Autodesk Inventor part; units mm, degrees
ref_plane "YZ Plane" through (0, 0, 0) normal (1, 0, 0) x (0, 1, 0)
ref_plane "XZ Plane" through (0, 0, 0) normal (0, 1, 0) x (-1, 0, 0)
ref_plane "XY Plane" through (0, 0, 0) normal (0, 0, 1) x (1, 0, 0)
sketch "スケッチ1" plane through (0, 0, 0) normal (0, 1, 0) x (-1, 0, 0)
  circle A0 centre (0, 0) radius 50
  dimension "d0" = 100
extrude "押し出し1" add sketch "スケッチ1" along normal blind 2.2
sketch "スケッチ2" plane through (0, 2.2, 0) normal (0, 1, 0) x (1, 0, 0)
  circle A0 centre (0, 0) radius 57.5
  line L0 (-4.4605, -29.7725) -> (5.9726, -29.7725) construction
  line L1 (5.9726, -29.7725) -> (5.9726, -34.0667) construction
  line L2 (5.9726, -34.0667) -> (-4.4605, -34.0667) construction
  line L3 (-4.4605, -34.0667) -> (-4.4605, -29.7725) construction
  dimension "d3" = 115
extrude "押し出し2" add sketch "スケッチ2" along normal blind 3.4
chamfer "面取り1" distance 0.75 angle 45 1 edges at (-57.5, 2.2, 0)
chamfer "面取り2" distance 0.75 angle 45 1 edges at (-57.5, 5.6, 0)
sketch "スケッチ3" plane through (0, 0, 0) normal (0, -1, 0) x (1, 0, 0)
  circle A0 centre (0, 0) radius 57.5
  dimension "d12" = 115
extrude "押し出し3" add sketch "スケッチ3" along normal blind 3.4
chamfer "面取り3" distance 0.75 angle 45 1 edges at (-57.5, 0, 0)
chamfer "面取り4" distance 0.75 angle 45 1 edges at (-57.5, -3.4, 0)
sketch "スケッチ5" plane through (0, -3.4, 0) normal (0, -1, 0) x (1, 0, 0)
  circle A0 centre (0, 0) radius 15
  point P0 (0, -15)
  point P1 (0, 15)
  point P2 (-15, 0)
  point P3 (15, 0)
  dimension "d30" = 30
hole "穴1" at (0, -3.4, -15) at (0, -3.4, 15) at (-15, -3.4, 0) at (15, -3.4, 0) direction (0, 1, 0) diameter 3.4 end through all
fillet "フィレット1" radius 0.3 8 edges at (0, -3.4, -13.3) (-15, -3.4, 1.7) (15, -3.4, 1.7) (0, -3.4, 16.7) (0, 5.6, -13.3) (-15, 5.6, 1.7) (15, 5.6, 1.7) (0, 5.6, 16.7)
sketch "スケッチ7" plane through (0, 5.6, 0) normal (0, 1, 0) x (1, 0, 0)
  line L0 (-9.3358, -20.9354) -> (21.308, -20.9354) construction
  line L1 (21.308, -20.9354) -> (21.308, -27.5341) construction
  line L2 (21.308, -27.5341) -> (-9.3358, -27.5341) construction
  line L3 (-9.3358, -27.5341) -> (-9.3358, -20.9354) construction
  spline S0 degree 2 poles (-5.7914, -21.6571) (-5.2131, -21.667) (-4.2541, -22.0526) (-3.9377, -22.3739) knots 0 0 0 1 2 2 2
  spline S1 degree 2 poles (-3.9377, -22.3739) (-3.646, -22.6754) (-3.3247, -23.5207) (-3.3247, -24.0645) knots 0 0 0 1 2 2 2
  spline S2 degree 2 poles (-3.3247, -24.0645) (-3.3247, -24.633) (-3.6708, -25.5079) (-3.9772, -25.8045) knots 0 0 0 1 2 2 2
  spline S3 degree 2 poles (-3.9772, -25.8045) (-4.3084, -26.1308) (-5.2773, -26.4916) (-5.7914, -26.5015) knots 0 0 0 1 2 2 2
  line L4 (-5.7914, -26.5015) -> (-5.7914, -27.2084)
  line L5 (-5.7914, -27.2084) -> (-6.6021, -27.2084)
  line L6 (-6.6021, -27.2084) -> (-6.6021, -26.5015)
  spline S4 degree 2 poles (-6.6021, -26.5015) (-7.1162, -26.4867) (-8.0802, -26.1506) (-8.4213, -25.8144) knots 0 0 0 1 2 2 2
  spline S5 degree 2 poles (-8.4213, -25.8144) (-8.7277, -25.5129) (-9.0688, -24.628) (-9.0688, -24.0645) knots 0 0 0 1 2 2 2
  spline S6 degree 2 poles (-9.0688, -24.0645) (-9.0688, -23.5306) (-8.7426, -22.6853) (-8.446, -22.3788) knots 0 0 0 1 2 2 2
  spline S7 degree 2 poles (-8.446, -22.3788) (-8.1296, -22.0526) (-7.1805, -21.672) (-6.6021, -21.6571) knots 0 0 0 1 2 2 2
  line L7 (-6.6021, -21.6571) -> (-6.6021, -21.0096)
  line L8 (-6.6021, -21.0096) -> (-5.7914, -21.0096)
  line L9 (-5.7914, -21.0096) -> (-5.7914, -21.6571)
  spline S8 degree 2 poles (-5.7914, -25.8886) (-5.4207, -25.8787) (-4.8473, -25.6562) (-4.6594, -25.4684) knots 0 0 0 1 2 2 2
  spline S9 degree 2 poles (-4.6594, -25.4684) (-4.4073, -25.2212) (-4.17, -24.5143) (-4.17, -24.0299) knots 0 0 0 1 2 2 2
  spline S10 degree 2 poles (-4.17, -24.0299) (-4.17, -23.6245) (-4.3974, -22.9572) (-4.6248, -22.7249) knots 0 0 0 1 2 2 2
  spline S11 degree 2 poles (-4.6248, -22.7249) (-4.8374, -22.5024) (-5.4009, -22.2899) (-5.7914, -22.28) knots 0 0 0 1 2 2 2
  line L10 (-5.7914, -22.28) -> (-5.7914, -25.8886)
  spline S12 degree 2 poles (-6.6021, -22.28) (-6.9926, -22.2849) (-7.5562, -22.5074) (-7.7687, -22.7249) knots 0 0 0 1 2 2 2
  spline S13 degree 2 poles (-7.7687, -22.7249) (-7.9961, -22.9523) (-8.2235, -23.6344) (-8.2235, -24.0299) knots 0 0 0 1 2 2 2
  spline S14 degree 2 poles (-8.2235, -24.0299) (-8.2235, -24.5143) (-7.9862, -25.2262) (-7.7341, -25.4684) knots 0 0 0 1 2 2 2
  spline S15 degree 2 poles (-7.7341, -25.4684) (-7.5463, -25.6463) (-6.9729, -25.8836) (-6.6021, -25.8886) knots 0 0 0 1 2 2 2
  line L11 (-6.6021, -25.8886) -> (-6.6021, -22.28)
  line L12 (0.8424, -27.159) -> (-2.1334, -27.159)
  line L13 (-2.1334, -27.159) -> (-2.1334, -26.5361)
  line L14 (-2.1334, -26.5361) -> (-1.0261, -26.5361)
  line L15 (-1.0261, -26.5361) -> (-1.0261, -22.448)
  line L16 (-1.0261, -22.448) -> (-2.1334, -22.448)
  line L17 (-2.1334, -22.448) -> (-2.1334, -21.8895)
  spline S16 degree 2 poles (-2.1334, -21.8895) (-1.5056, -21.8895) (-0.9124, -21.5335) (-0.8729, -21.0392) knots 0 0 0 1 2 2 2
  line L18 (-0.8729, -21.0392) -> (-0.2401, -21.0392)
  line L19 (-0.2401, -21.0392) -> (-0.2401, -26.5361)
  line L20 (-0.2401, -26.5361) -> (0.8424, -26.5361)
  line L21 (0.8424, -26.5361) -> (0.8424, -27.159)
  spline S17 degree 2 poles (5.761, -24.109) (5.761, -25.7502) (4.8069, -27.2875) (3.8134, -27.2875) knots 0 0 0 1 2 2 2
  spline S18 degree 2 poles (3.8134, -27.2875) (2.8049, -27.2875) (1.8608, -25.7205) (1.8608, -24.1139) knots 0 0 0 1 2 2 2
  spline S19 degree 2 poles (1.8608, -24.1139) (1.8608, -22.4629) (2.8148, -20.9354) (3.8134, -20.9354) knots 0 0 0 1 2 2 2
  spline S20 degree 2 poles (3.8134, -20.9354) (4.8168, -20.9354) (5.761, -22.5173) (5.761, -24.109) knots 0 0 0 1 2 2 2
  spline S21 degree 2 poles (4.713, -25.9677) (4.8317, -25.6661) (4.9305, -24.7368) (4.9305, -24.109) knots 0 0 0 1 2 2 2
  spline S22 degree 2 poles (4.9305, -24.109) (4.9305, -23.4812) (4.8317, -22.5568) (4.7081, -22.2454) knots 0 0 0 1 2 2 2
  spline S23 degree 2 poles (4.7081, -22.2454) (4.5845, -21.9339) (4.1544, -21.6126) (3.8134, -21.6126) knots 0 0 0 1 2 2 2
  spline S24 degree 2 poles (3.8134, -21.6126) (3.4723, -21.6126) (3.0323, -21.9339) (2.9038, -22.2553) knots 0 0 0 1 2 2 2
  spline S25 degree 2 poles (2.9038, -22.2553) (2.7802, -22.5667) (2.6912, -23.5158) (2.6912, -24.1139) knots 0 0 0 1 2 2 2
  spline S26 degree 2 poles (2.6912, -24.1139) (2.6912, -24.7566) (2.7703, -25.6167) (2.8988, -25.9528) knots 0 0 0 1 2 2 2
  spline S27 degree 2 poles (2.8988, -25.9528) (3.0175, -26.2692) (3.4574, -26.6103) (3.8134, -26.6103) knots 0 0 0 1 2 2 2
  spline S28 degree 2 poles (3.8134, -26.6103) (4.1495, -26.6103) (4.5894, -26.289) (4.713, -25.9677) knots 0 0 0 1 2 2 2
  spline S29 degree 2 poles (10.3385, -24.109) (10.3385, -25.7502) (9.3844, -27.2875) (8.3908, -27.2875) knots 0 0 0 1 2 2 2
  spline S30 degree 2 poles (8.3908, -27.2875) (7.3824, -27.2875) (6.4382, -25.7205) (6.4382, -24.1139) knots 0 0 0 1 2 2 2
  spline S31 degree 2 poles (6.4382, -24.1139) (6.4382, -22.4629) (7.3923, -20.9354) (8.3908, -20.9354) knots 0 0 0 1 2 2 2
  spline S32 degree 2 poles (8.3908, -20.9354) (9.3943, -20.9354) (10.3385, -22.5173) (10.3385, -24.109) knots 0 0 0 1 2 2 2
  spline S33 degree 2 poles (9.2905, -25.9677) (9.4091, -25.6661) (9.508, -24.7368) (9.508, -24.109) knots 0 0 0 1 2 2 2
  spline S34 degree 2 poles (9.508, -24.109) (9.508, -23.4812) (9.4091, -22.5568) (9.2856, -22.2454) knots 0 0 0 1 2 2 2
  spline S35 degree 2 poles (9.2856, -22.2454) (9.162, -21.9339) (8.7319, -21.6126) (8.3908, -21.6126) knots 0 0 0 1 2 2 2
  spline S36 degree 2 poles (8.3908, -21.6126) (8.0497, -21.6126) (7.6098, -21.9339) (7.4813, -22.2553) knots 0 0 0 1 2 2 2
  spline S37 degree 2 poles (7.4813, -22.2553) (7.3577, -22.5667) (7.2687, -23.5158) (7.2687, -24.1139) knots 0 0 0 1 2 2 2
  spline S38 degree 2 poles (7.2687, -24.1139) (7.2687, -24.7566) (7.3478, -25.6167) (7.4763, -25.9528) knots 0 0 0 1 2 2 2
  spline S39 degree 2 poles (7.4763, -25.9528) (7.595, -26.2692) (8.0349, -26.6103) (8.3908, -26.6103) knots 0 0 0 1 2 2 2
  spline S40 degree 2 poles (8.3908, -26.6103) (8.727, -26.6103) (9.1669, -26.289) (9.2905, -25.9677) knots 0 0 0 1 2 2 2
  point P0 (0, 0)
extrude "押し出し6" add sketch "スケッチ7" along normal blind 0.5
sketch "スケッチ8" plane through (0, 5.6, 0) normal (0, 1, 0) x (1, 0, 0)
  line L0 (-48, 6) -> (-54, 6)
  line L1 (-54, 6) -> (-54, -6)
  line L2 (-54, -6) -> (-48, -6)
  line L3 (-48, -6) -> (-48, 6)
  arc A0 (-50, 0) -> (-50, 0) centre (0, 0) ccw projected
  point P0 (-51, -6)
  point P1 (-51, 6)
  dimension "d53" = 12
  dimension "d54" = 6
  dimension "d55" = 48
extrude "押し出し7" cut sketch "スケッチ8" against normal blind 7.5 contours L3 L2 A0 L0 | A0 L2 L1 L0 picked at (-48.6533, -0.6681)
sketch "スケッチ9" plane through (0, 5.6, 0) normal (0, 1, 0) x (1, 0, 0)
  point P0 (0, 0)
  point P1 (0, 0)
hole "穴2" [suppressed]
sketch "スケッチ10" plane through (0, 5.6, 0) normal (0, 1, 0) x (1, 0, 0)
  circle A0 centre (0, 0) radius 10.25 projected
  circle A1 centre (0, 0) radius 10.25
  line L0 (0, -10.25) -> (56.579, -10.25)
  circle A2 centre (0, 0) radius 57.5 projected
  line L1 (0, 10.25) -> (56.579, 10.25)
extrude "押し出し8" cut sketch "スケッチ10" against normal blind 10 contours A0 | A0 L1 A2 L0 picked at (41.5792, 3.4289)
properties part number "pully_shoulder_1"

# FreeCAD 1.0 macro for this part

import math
import FreeCAD as App
import Part
import Sketcher


def edges_at(feature, points):
    """Names of the edges that pass closest to the given points."""
    edges = feature.Shape.Edges
    near = lambda p: min(range(len(edges)), key=lambda i: edges[i].distToShape(Part.Vertex(*p))[0])
    return sorted({f"Edge{near(p) + 1}" for p in points})


def add_polygon(sketch, points):
    """Adds a closed chain of lines whose ends are joined by coincident constraints."""
    first, n = sketch.GeometryCount, len(points)
    for a, b in zip(points, points[1:] + points[:1]):
        sketch.addGeometry(Part.LineSegment(App.Vector(*a, 0), App.Vector(*b, 0)), False)
    for i in range(n):
        sketch.addConstraint(Sketcher.Constraint("Coincident", first + i, 2, first + (i + 1) % n, 1))

doc = App.newDocument("Part")
body = doc.addObject("PartDesign::Body", "Body")

# Sketch on XZ plane
sketch1 = body.newObject("Sketcher::SketchObject", "Sketch")
sketch1.AttachmentSupport = (doc.getObject("XZ_Plane"), [""])
sketch1.MapMode = "FlatFace"
sketch1.addGeometry(Part.Circle(App.Vector(0, 0, 0), App.Vector(0, 0, 1), 50), False)
sketch1.addConstraint([
    Sketcher.Constraint("Coincident", 0, 3, -1, 1),
    Sketcher.Constraint("Diameter", 0, 100.0),
])
pad1 = body.newObject("PartDesign::Pad", "Pad")
pad1.Profile = sketch1
pad1.Length = 2.2
pad1.Reversed = True

# Sketch on XZ plane
sketch2 = body.newObject("Sketcher::SketchObject", "Sketch001")
sketch2.AttachmentSupport = (doc.getObject("XZ_Plane"), [""])
sketch2.MapMode = "FlatFace"
sketch2.AttachmentOffset = App.Placement(App.Vector(0, 0, -2.2), App.Rotation())
sketch2.addGeometry(Part.Circle(App.Vector(0, 0, 0), App.Vector(0, 0, 1), 57.5), False)
sketch2.addConstraint([
    Sketcher.Constraint("Coincident", 0, 3, -1, 1),
    Sketcher.Constraint("Diameter", 0, 115.0),
])
pad2 = body.newObject("PartDesign::Pad", "Pad001")
pad2.Profile = sketch2
pad2.Length = 3.4
pad2.Reversed = True
doc.recompute()

chamfer = body.newObject("PartDesign::Chamfer", "Chamfer")
chamfer.Base = (pad2, edges_at(pad2, [(-57.5, 2.2, 0)]))
chamfer.Size = 0.75
doc.recompute()

chamfer2 = body.newObject("PartDesign::Chamfer", "Chamfer001")
chamfer2.Base = (chamfer, edges_at(chamfer, [(-57.5, 5.6, 0)]))
chamfer2.Size = 0.75

# Sketch on XZ plane
sketch3 = body.newObject("Sketcher::SketchObject", "Sketch002")
sketch3.AttachmentSupport = (doc.getObject("XZ_Plane"), [""])
sketch3.MapMode = "FlatFace"
sketch3.addGeometry(Part.Circle(App.Vector(0, 0, 0), App.Vector(0, 0, 1), 57.5), False)
sketch3.addConstraint([
    Sketcher.Constraint("Coincident", 0, 3, -1, 1),
    Sketcher.Constraint("Diameter", 0, 115.0),
])
pad3 = body.newObject("PartDesign::Pad", "Pad002")
pad3.Profile = sketch3
pad3.Length = 3.4
doc.recompute()

chamfer3 = body.newObject("PartDesign::Chamfer", "Chamfer002")
chamfer3.Base = (pad3, edges_at(pad3, [(-57.5, 0, 0)]))
chamfer3.Size = 0.75
doc.recompute()

chamfer4 = body.newObject("PartDesign::Chamfer", "Chamfer003")
chamfer4.Base = (chamfer3, edges_at(chamfer3, [(-57.5, -3.4, 0)]))
chamfer4.Size = 0.75

# Sketch on XZ plane
sketch4 = body.newObject("Sketcher::SketchObject", "Sketch003")
sketch4.AttachmentSupport = (doc.getObject("XZ_Plane"), [""])
sketch4.MapMode = "FlatFace"
sketch4.AttachmentOffset = App.Placement(App.Vector(0, 0, 3.4), App.Rotation())
sketch4.addGeometry([
    Part.Circle(App.Vector(0, -15, 0), App.Vector(0, 0, 1), 1.7),
    Part.Circle(App.Vector(0, 15, 0), App.Vector(0, 0, 1), 1.7),
    Part.Circle(App.Vector(-15, 0, 0), App.Vector(0, 0, 1), 1.7),
    Part.Circle(App.Vector(15, 0, 0), App.Vector(0, 0, 1), 1.7),
], False)
sketch4.addConstraint([
    Sketcher.Constraint("Equal", 0, 1),
    Sketcher.Constraint("Equal", 1, 2),
    Sketcher.Constraint("Equal", 2, 3),
    Sketcher.Constraint("Symmetric", 0, 3, 1, 3, -1, 1),
    Sketcher.Constraint("Symmetric", 2, 3, 3, 3, -1, 1),
    Sketcher.Constraint("PointOnObject", 0, 3, -2),
    Sketcher.Constraint("PointOnObject", 2, 3, -1),
    Sketcher.Constraint("Diameter", 0, 3.4),
    Sketcher.Constraint("DistanceY", 0, 3, -1, 1, 15.0),
    Sketcher.Constraint("DistanceX", 2, 3, -1, 1, 15.0),
])
doc.recompute()
hole = body.newObject("PartDesign::Hole", "Hole")
hole.Profile = sketch4
hole.ThreadType = "None"
hole.Diameter = 3.4
hole.DepthType = "ThroughAll"
doc.recompute()

fillet = body.newObject("PartDesign::Fillet", "Fillet")
fillet.Base = (hole, edges_at(hole, [
    (0, -3.4, -13.3),
    (-15, -3.4, 1.7),
    (15, -3.4, 1.7),
    (0, -3.4, 16.7),
    (0, 5.6, -13.3),
    (-15, 5.6, 1.7),
    (15, 5.6, 1.7),
    (0, 5.6, 16.7),
]))
fillet.Radius = 0.3

# Sketch on XZ plane
sketch5 = body.newObject("Sketcher::SketchObject", "Sketch004")
sketch5.AttachmentSupport = (doc.getObject("XZ_Plane"), [""])
sketch5.MapMode = "FlatFace"
sketch5.AttachmentOffset = App.Placement(App.Vector(0, 0, -5.6), App.Rotation())
sketch5.addGeometry([
    Part.BSplineCurve([App.Vector(-5.7914, 21.6571, 0), App.Vector(-5.2131, 21.667, 0), App.Vector(-4.2541, 22.0526, 0), App.Vector(-3.9377, 22.3739, 0)], [3, 1, 3], [0, 1, 2], False, 2, [1, 1, 1, 1], False),  # 0
    Part.LineSegment(App.Vector(-5.7914, 21.6571, 0), App.Vector(-5.7914, 21.0096, 0)),  # 1
    Part.LineSegment(App.Vector(-5.7914, 21.0096, 0), App.Vector(-6.6021, 21.0096, 0)),  # 2
    Part.LineSegment(App.Vector(-6.6021, 21.0096, 0), App.Vector(-6.6021, 21.6571, 0)),  # 3
    Part.BSplineCurve([App.Vector(-8.446, 22.3788, 0), App.Vector(-8.1296, 22.0526, 0), App.Vector(-7.1805, 21.672, 0), App.Vector(-6.6021, 21.6571, 0)], [3, 1, 3], [0, 1, 2], False, 2, [1, 1, 1, 1], False),  # 4
    Part.BSplineCurve([App.Vector(-9.0688, 24.0645, 0), App.Vector(-9.0688, 23.5306, 0), App.Vector(-8.7426, 22.6853, 0), App.Vector(-8.446, 22.3788, 0)], [3, 1, 3], [0, 1, 2], False, 2, [1, 1, 1, 1], False),  # 5
    Part.BSplineCurve([App.Vector(-8.4213, 25.8144, 0), App.Vector(-8.7277, 25.5129, 0), App.Vector(-9.0688, 24.628, 0), App.Vector(-9.0688, 24.0645, 0)], [3, 1, 3], [0, 1, 2], False, 2, [1, 1, 1, 1], False),  # 6
    Part.BSplineCurve([App.Vector(-6.6021, 26.5015, 0), App.Vector(-7.1162, 26.4867, 0), App.Vector(-8.0802, 26.1506, 0), App.Vector(-8.4213, 25.8144, 0)], [3, 1, 3], [0, 1, 2], False, 2, [1, 1, 1, 1], False),  # 7
    Part.LineSegment(App.Vector(-6.6021, 26.5015, 0), App.Vector(-6.6021, 27.2084, 0)),  # 8
    Part.LineSegment(App.Vector(-6.6021, 27.2084, 0), App.Vector(-5.7914, 27.2084, 0)),  # 9
    Part.LineSegment(App.Vector(-5.7914, 27.2084, 0), App.Vector(-5.7914, 26.5015, 0)),  # 10
    Part.BSplineCurve([App.Vector(-3.9772, 25.8045, 0), App.Vector(-4.3084, 26.1308, 0), App.Vector(-5.2773, 26.4916, 0), App.Vector(-5.7914, 26.5015, 0)], [3, 1, 3], [0, 1, 2], False, 2, [1, 1, 1, 1], False),  # 11
    Part.BSplineCurve([App.Vector(-3.3247, 24.0645, 0), App.Vector(-3.3247, 24.633, 0), App.Vector(-3.6708, 25.5079, 0), App.Vector(-3.9772, 25.8045, 0)], [3, 1, 3], [0, 1, 2], False, 2, [1, 1, 1, 1], False),  # 12
    Part.BSplineCurve([App.Vector(-3.9377, 22.3739, 0), App.Vector(-3.646, 22.6754, 0), App.Vector(-3.3247, 23.5207, 0), App.Vector(-3.3247, 24.0645, 0)], [3, 1, 3], [0, 1, 2], False, 2, [1, 1, 1, 1], False),  # 13
    Part.BSplineCurve([App.Vector(-6.6021, 22.28, 0), App.Vector(-6.9926, 22.2849, 0), App.Vector(-7.5562, 22.5074, 0), App.Vector(-7.7687, 22.7249, 0)], [3, 1, 3], [0, 1, 2], False, 2, [1, 1, 1, 1], False),  # 14
    Part.LineSegment(App.Vector(-6.6021, 22.28, 0), App.Vector(-6.6021, 25.8886, 0)),  # 15
    Part.BSplineCurve([App.Vector(-7.7341, 25.4684, 0), App.Vector(-7.5463, 25.6463, 0), App.Vector(-6.9729, 25.8836, 0), App.Vector(-6.6021, 25.8886, 0)], [3, 1, 3], [0, 1, 2], False, 2, [1, 1, 1, 1], False),  # 16
    Part.BSplineCurve([App.Vector(-8.2235, 24.0299, 0), App.Vector(-8.2235, 24.5143, 0), App.Vector(-7.9862, 25.2262, 0), App.Vector(-7.7341, 25.4684, 0)], [3, 1, 3], [0, 1, 2], False, 2, [1, 1, 1, 1], False),  # 17
    Part.BSplineCurve([App.Vector(-7.7687, 22.7249, 0), App.Vector(-7.9961, 22.9523, 0), App.Vector(-8.2235, 23.6344, 0), App.Vector(-8.2235, 24.0299, 0)], [3, 1, 3], [0, 1, 2], False, 2, [1, 1, 1, 1], False),  # 18
    Part.BSplineCurve([App.Vector(-5.7914, 25.8886, 0), App.Vector(-5.4207, 25.8787, 0), App.Vector(-4.8473, 25.6562, 0), App.Vector(-4.6594, 25.4684, 0)], [3, 1, 3], [0, 1, 2], False, 2, [1, 1, 1, 1], False),  # 19
    Part.LineSegment(App.Vector(-5.7914, 25.8886, 0), App.Vector(-5.7914, 22.28, 0)),  # 20
    Part.BSplineCurve([App.Vector(-4.6248, 22.7249, 0), App.Vector(-4.8374, 22.5024, 0), App.Vector(-5.4009, 22.2899, 0), App.Vector(-5.7914, 22.28, 0)], [3, 1, 3], [0, 1, 2], False, 2, [1, 1, 1, 1], False),  # 21
    Part.BSplineCurve([App.Vector(-4.17, 24.0299, 0), App.Vector(-4.17, 23.6245, 0), App.Vector(-4.3974, 22.9572, 0), App.Vector(-4.6248, 22.7249, 0)], [3, 1, 3], [0, 1, 2], False, 2, [1, 1, 1, 1], False),  # 22
    Part.BSplineCurve([App.Vector(-4.6594, 25.4684, 0), App.Vector(-4.4073, 25.2212, 0), App.Vector(-4.17, 24.5143, 0), App.Vector(-4.17, 24.0299, 0)], [3, 1, 3], [0, 1, 2], False, 2, [1, 1, 1, 1], False),  # 23
    Part.LineSegment(App.Vector(-2.1334, 27.159, 0), App.Vector(0.8424, 27.159, 0)),  # 24
    Part.LineSegment(App.Vector(0.8424, 27.159, 0), App.Vector(0.8424, 26.5361, 0)),  # 25
    Part.LineSegment(App.Vector(0.8424, 26.5361, 0), App.Vector(-0.2401, 26.5361, 0)),  # 26
    Part.LineSegment(App.Vector(-0.2401, 26.5361, 0), App.Vector(-0.2401, 21.0392, 0)),  # 27
    Part.LineSegment(App.Vector(-0.2401, 21.0392, 0), App.Vector(-0.8729, 21.0392, 0)),  # 28
    Part.BSplineCurve([App.Vector(-2.1334, 21.8895, 0), App.Vector(-1.5056, 21.8895, 0), App.Vector(-0.9124, 21.5335, 0), App.Vector(-0.8729, 21.0392, 0)], [3, 1, 3], [0, 1, 2], False, 2, [1, 1, 1, 1], False),  # 29
    Part.LineSegment(App.Vector(-2.1334, 21.8895, 0), App.Vector(-2.1334, 22.448, 0)),  # 30
    Part.LineSegment(App.Vector(-2.1334, 22.448, 0), App.Vector(-1.0261, 22.448, 0)),  # 31
    Part.LineSegment(App.Vector(-1.0261, 22.448, 0), App.Vector(-1.0261, 26.5361, 0)),  # 32
    Part.LineSegment(App.Vector(-1.0261, 26.5361, 0), App.Vector(-2.1334, 26.5361, 0)),  # 33
    Part.LineSegment(App.Vector(-2.1334, 26.5361, 0), App.Vector(-2.1334, 27.159, 0)),  # 34
    Part.BSplineCurve([App.Vector(5.761, 24.109, 0), App.Vector(5.761, 25.7502, 0), App.Vector(4.8069, 27.2875, 0), App.Vector(3.8134, 27.2875, 0)], [3, 1, 3], [0, 1, 2], False, 2, [1, 1, 1, 1], False),  # 35
    Part.BSplineCurve([App.Vector(3.8134, 20.9354, 0), App.Vector(4.8168, 20.9354, 0), App.Vector(5.761, 22.5173, 0), App.Vector(5.761, 24.109, 0)], [3, 1, 3], [0, 1, 2], False, 2, [1, 1, 1, 1], False),  # 36
    Part.BSplineCurve([App.Vector(1.8608, 24.1139, 0), App.Vector(1.8608, 22.4629, 0), App.Vector(2.8148, 20.9354, 0), App.Vector(3.8134, 20.9354, 0)], [3, 1, 3], [0, 1, 2], False, 2, [1, 1, 1, 1], False),  # 37
    Part.BSplineCurve([App.Vector(3.8134, 27.2875, 0), App.Vector(2.8049, 27.2875, 0), App.Vector(1.8608, 25.7205, 0), App.Vector(1.8608, 24.1139, 0)], [3, 1, 3], [0, 1, 2], False, 2, [1, 1, 1, 1], False),  # 38
    Part.BSplineCurve([App.Vector(4.713, 25.9677, 0), App.Vector(4.8317, 25.6661, 0), App.Vector(4.9305, 24.7368, 0), App.Vector(4.9305, 24.109, 0)], [3, 1, 3], [0, 1, 2], False, 2, [1, 1, 1, 1], False),  # 39
    Part.BSplineCurve([App.Vector(3.8134, 26.6103, 0), App.Vector(4.1495, 26.6103, 0), App.Vector(4.5894, 26.289, 0), App.Vector(4.713, 25.9677, 0)], [3, 1, 3], [0, 1, 2], False, 2, [1, 1, 1, 1], False),  # 40
    Part.BSplineCurve([App.Vector(2.8988, 25.9528, 0), App.Vector(3.0175, 26.2692, 0), App.Vector(3.4574, 26.6103, 0), App.Vector(3.8134, 26.6103, 0)], [3, 1, 3], [0, 1, 2], False, 2, [1, 1, 1, 1], False),  # 41
    Part.BSplineCurve([App.Vector(2.6912, 24.1139, 0), App.Vector(2.6912, 24.7566, 0), App.Vector(2.7703, 25.6167, 0), App.Vector(2.8988, 25.9528, 0)], [3, 1, 3], [0, 1, 2], False, 2, [1, 1, 1, 1], False),  # 42
    Part.BSplineCurve([App.Vector(2.9038, 22.2553, 0), App.Vector(2.7802, 22.5667, 0), App.Vector(2.6912, 23.5158, 0), App.Vector(2.6912, 24.1139, 0)], [3, 1, 3], [0, 1, 2], False, 2, [1, 1, 1, 1], False),  # 43
    Part.BSplineCurve([App.Vector(3.8134, 21.6126, 0), App.Vector(3.4723, 21.6126, 0), App.Vector(3.0323, 21.9339, 0), App.Vector(2.9038, 22.2553, 0)], [3, 1, 3], [0, 1, 2], False, 2, [1, 1, 1, 1], False),  # 44
    Part.BSplineCurve([App.Vector(4.7081, 22.2454, 0), App.Vector(4.5845, 21.9339, 0), App.Vector(4.1544, 21.6126, 0), App.Vector(3.8134, 21.6126, 0)], [3, 1, 3], [0, 1, 2], False, 2, [1, 1, 1, 1], False),  # 45
    Part.BSplineCurve([App.Vector(4.9305, 24.109, 0), App.Vector(4.9305, 23.4812, 0), App.Vector(4.8317, 22.5568, 0), App.Vector(4.7081, 22.2454, 0)], [3, 1, 3], [0, 1, 2], False, 2, [1, 1, 1, 1], False),  # 46
    Part.BSplineCurve([App.Vector(10.3385, 24.109, 0), App.Vector(10.3385, 25.7502, 0), App.Vector(9.3844, 27.2875, 0), App.Vector(8.3908, 27.2875, 0)], [3, 1, 3], [0, 1, 2], False, 2, [1, 1, 1, 1], False),  # 47
    Part.BSplineCurve([App.Vector(8.3908, 20.9354, 0), App.Vector(9.3943, 20.9354, 0), App.Vector(10.3385, 22.5173, 0), App.Vector(10.3385, 24.109, 0)], [3, 1, 3], [0, 1, 2], False, 2, [1, 1, 1, 1], False),  # 48
    Part.BSplineCurve([App.Vector(6.4382, 24.1139, 0), App.Vector(6.4382, 22.4629, 0), App.Vector(7.3923, 20.9354, 0), App.Vector(8.3908, 20.9354, 0)], [3, 1, 3], [0, 1, 2], False, 2, [1, 1, 1, 1], False),  # 49
    Part.BSplineCurve([App.Vector(8.3908, 27.2875, 0), App.Vector(7.3824, 27.2875, 0), App.Vector(6.4382, 25.7205, 0), App.Vector(6.4382, 24.1139, 0)], [3, 1, 3], [0, 1, 2], False, 2, [1, 1, 1, 1], False),  # 50
    Part.BSplineCurve([App.Vector(9.2905, 25.9677, 0), App.Vector(9.4091, 25.6661, 0), App.Vector(9.508, 24.7368, 0), App.Vector(9.508, 24.109, 0)], [3, 1, 3], [0, 1, 2], False, 2, [1, 1, 1, 1], False),  # 51
    Part.BSplineCurve([App.Vector(8.3908, 26.6103, 0), App.Vector(8.727, 26.6103, 0), App.Vector(9.1669, 26.289, 0), App.Vector(9.2905, 25.9677, 0)], [3, 1, 3], [0, 1, 2], False, 2, [1, 1, 1, 1], False),  # 52
    Part.BSplineCurve([App.Vector(7.4763, 25.9528, 0), App.Vector(7.595, 26.2692, 0), App.Vector(8.0349, 26.6103, 0), App.Vector(8.3908, 26.6103, 0)], [3, 1, 3], [0, 1, 2], False, 2, [1, 1, 1, 1], False),  # 53
    Part.BSplineCurve([App.Vector(7.2687, 24.1139, 0), App.Vector(7.2687, 24.7566, 0), App.Vector(7.3478, 25.6167, 0), App.Vector(7.4763, 25.9528, 0)], [3, 1, 3], [0, 1, 2], False, 2, [1, 1, 1, 1], False),  # 54
    Part.BSplineCurve([App.Vector(7.4813, 22.2553, 0), App.Vector(7.3577, 22.5667, 0), App.Vector(7.2687, 23.5158, 0), App.Vector(7.2687, 24.1139, 0)], [3, 1, 3], [0, 1, 2], False, 2, [1, 1, 1, 1], False),  # 55
    Part.BSplineCurve([App.Vector(8.3908, 21.6126, 0), App.Vector(8.0497, 21.6126, 0), App.Vector(7.6098, 21.9339, 0), App.Vector(7.4813, 22.2553, 0)], [3, 1, 3], [0, 1, 2], False, 2, [1, 1, 1, 1], False),  # 56
    Part.BSplineCurve([App.Vector(9.2856, 22.2454, 0), App.Vector(9.162, 21.9339, 0), App.Vector(8.7319, 21.6126, 0), App.Vector(8.3908, 21.6126, 0)], [3, 1, 3], [0, 1, 2], False, 2, [1, 1, 1, 1], False),  # 57
    Part.BSplineCurve([App.Vector(9.508, 24.109, 0), App.Vector(9.508, 23.4812, 0), App.Vector(9.4091, 22.5568, 0), App.Vector(9.2856, 22.2454, 0)], [3, 1, 3], [0, 1, 2], False, 2, [1, 1, 1, 1], False),  # 58
], False)
sketch5.addConstraint([
    Sketcher.Constraint("Block", 0),
    Sketcher.Constraint("Block", 4),
    Sketcher.Constraint("Block", 5),
    Sketcher.Constraint("Block", 6),
    Sketcher.Constraint("Block", 7),
    Sketcher.Constraint("Block", 11),
    Sketcher.Constraint("Block", 12),
    Sketcher.Constraint("Block", 13),
    Sketcher.Constraint("Block", 14),
    Sketcher.Constraint("Block", 16),
    Sketcher.Constraint("Block", 17),
    Sketcher.Constraint("Block", 18),
    Sketcher.Constraint("Block", 19),
    Sketcher.Constraint("Block", 21),
    Sketcher.Constraint("Block", 22),
    Sketcher.Constraint("Block", 23),
    Sketcher.Constraint("Block", 29),
    Sketcher.Constraint("Block", 35),
    Sketcher.Constraint("Block", 36),
    Sketcher.Constraint("Block", 37),
    Sketcher.Constraint("Block", 38),
    Sketcher.Constraint("Block", 39),
    Sketcher.Constraint("Block", 40),
    Sketcher.Constraint("Block", 41),
    Sketcher.Constraint("Block", 42),
    Sketcher.Constraint("Block", 43),
    Sketcher.Constraint("Block", 44),
    Sketcher.Constraint("Block", 45),
    Sketcher.Constraint("Block", 46),
    Sketcher.Constraint("Block", 47),
    Sketcher.Constraint("Block", 48),
    Sketcher.Constraint("Block", 49),
    Sketcher.Constraint("Block", 50),
    Sketcher.Constraint("Block", 51),
    Sketcher.Constraint("Block", 52),
    Sketcher.Constraint("Block", 53),
    Sketcher.Constraint("Block", 54),
    Sketcher.Constraint("Block", 55),
    Sketcher.Constraint("Block", 56),
    Sketcher.Constraint("Block", 57),
    Sketcher.Constraint("Block", 58),
    Sketcher.Constraint("Coincident", 0, 1, 1, 1),
    Sketcher.Constraint("Coincident", 1, 2, 2, 1),
    Sketcher.Constraint("Coincident", 2, 2, 3, 1),
    Sketcher.Constraint("Coincident", 3, 2, 4, 2),
    Sketcher.Constraint("Coincident", 7, 1, 8, 1),
    Sketcher.Constraint("Coincident", 8, 2, 9, 1),
    Sketcher.Constraint("Coincident", 9, 2, 10, 1),
    Sketcher.Constraint("Coincident", 10, 2, 11, 2),
    Sketcher.Constraint("Coincident", 14, 1, 15, 1),
    Sketcher.Constraint("Coincident", 15, 2, 16, 2),
    Sketcher.Constraint("Coincident", 19, 1, 20, 1),
    Sketcher.Constraint("Coincident", 20, 2, 21, 2),
    Sketcher.Constraint("Coincident", 24, 2, 25, 1),
    Sketcher.Constraint("Coincident", 25, 2, 26, 1),
    Sketcher.Constraint("Coincident", 26, 2, 27, 1),
    Sketcher.Constraint("Coincident", 27, 2, 28, 1),
    Sketcher.Constraint("Coincident", 28, 2, 29, 2),
    Sketcher.Constraint("Coincident", 29, 1, 30, 1),
    Sketcher.Constraint("Coincident", 30, 2, 31, 1),
    Sketcher.Constraint("Coincident", 31, 2, 32, 1),
    Sketcher.Constraint("Coincident", 32, 2, 33, 1),
    Sketcher.Constraint("Coincident", 33, 2, 34, 1),
    Sketcher.Constraint("Coincident", 34, 2, 24, 1),
    Sketcher.Constraint("Vertical", 1),
    Sketcher.Constraint("Horizontal", 2),
    Sketcher.Constraint("Vertical", 3),
    Sketcher.Constraint("Vertical", 8),
    Sketcher.Constraint("Horizontal", 9),
    Sketcher.Constraint("Vertical", 10),
    Sketcher.Constraint("Horizontal", 24),
    Sketcher.Constraint("Vertical", 25),
    Sketcher.Constraint("Horizontal", 26),
    Sketcher.Constraint("Vertical", 27),
    Sketcher.Constraint("Horizontal", 28),
    Sketcher.Constraint("Vertical", 30),
    Sketcher.Constraint("Horizontal", 31),
    Sketcher.Constraint("Vertical", 32),
    Sketcher.Constraint("Horizontal", 33),
    Sketcher.Constraint("Vertical", 34),
    Sketcher.Constraint("Horizontal", 26, 2, 32, 2),
    Sketcher.Constraint("Vertical", 30, 2, 33, 2),
    Sketcher.Constraint("DistanceY", 8, 1, 8, 2, 0.707),
    Sketcher.Constraint("DistanceY", 25, 2, 25, 1, 0.623),
    Sketcher.Constraint("DistanceY", 27, 2, 27, 1, 5.497),
    Sketcher.Constraint("DistanceY", 32, 1, 32, 2, 4.088),
    Sketcher.Constraint("DistanceX", 26, 2, -1, 1, 0.24),
    Sketcher.Constraint("DistanceX", 24, 1, 24, 2, 2.9758),
    Sketcher.Constraint("DistanceX", 31, 1, 31, 2, 1.1073),
    Sketcher.Constraint("DistanceY", 1, 2, 1, 1, 0.6475),
])
pad4 = body.newObject("PartDesign::Pad", "Pad003")
pad4.Profile = sketch5
pad4.Length = 0.5
pad4.Reversed = True

# Sketch on XZ plane
sketch6 = body.newObject("Sketcher::SketchObject", "Sketch005")
sketch6.AttachmentSupport = (doc.getObject("XZ_Plane"), [""])
sketch6.MapMode = "FlatFace"
sketch6.AttachmentOffset = App.Placement(App.Vector(0, 0, -5.6), App.Rotation())
add_polygon(sketch6, [(-48, 6), (-48, -6), (-54, -6), (-54, 6)])  # lines 0-3
sketch6.addConstraint([
    Sketcher.Constraint("Vertical", 0),
    Sketcher.Constraint("Horizontal", 1),
    Sketcher.Constraint("Vertical", 2),
    Sketcher.Constraint("Horizontal", 3),
    Sketcher.Constraint("DistanceX", 1, 2, 1, 1, 6.0),
    Sketcher.Constraint("DistanceY", 0, 2, 0, 1, 12.0),
    Sketcher.Constraint("DistanceX", 0, 2, -1, 1, 48.0),
    Sketcher.Constraint("DistanceY", 0, 2, -1, 1, 6.0),
])
pocket1 = body.newObject("PartDesign::Pocket", "Pocket")
pocket1.Profile = sketch6
pocket1.Length = 7.5
pocket1.Reversed = True

# Sketch on XZ plane
sketch7 = body.newObject("Sketcher::SketchObject", "Sketch006")
sketch7.AttachmentSupport = (doc.getObject("XZ_Plane"), [""])
sketch7.MapMode = "FlatFace"
sketch7.AttachmentOffset = App.Placement(App.Vector(0, 0, -5.6), App.Rotation())
sketch7.addGeometry([
    Part.ArcOfCircle(Part.Circle(App.Vector(0, 0, 0), App.Vector(0, 0, 1), 10.25), math.radians(90), math.radians(270)),
    Part.LineSegment(App.Vector(0, 10.25, 0), App.Vector(56.579, 10.25, 0)),
    Part.ArcOfCircle(Part.Circle(App.Vector(0, 0, 0), App.Vector(0, 0, 1), 57.5), math.radians(-10.268483), math.radians(10.268483)),
    Part.LineSegment(App.Vector(56.579, -10.25, 0), App.Vector(0, -10.25, 0)),
], False)
sketch7.addConstraint([
    Sketcher.Constraint("Tangent", 0, 1, 1, 1),
    Sketcher.Constraint("Coincident", 1, 2, 2, 2),
    Sketcher.Constraint("Coincident", 2, 1, 3, 1),
    Sketcher.Constraint("Tangent", 3, 2, 0, 2),
    Sketcher.Constraint("Horizontal", 1),
    Sketcher.Constraint("Horizontal", 3),
    Sketcher.Constraint("Coincident", 0, 3, -1, 1),
    Sketcher.Constraint("Coincident", 2, 3, -1, 1),
    Sketcher.Constraint("Radius", 2, 57.5),
    Sketcher.Constraint("Radius", 0, 10.25),
])
pocket2 = body.newObject("PartDesign::Pocket", "Pocket001")
pocket2.Profile = sketch7
pocket2.Length = 10
pocket2.Reversed = True

doc.recompute()
